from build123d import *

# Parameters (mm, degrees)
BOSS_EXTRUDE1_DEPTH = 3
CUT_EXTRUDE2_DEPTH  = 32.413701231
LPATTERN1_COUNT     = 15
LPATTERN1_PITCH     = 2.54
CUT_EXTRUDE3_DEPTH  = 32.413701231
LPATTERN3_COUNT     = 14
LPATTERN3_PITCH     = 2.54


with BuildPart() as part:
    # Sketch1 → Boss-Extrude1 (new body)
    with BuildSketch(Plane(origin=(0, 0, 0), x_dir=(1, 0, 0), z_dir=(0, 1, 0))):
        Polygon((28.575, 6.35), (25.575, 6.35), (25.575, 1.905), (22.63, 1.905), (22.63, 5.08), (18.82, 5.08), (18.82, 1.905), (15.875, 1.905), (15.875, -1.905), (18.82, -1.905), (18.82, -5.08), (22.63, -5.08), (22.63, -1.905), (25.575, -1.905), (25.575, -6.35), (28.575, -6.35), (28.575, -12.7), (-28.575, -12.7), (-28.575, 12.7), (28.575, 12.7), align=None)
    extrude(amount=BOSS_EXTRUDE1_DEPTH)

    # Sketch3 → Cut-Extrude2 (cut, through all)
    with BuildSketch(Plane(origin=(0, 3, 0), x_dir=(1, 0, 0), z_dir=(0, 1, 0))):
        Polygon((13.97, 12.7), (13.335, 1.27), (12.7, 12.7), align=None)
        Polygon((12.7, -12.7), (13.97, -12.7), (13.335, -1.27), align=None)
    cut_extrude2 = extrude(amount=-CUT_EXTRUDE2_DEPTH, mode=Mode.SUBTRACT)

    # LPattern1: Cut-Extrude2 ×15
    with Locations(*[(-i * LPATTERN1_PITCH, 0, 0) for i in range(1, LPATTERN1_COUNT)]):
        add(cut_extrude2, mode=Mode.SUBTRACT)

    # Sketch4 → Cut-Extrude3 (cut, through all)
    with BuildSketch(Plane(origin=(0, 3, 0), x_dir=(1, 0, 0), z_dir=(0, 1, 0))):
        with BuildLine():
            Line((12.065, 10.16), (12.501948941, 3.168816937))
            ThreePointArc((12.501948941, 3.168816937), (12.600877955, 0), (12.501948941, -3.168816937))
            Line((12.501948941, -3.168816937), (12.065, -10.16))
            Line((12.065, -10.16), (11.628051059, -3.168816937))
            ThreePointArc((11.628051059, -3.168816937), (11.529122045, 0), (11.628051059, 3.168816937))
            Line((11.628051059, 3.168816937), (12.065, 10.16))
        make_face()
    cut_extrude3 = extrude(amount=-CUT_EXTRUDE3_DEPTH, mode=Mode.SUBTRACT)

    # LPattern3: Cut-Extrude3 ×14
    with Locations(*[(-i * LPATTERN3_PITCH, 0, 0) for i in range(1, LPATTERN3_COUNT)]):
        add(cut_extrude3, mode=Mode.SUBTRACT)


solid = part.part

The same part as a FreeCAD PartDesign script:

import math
import FreeCAD as App
import Part
import Sketcher

V = App.Vector
Q = App.Units.Quantity


def add_polygon(sketch, points):
    """Adds a closed chain of lines whose ends are joined by coincident constraints."""
    first, n = sketch.GeometryCount, len(points)
    for a, b in zip(points, points[1:] + points[:1]):
        sketch.addGeometry(Part.LineSegment(App.Vector(*a, 0), App.Vector(*b, 0)), False)
    for i in range(n):
        sketch.addConstraint(Sketcher.Constraint("Coincident", first + i, 2, first + (i + 1) % n, 1))

doc = App.newDocument("Part")
body = doc.addObject("PartDesign::Body", "Body")

sketch1 = doc.addObject("Sketcher::SketchObject", "Sketch")
body.addObject(sketch1)
sketch1.AttachmentSupport = (doc.XZ_Plane, [""])
sketch1.MapMode = "FlatFace"
add_polygon(sketch1, [(25.6, -6.3), (28.6, -6.3), (28.6, -12.7), (-28.6, -12.7), (-28.6, 12.7), (28.6, 12.7), (28.6, 6.3), (25.6, 6.3), (25.6, 1.9), (22.6, 1.9), (22.6, 5.1), (18.8, 5.1), (18.8, 1.9), (15.9, 1.9), (15.9, -1.9), (18.8, -1.9), (18.8, -5.1), (22.6, -5.1), (22.6, -1.9), (25.6, -1.9)])
sketch1.addConstraint(Sketcher.Constraint("Horizontal", 0))
sketch1.addConstraint(Sketcher.Constraint("Vertical", 1))
sketch1.addConstraint(Sketcher.Constraint("Horizontal", 2))
sketch1.addConstraint(Sketcher.Constraint("Vertical", 3))
sketch1.addConstraint(Sketcher.Constraint("Horizontal", 4))
sketch1.addConstraint(Sketcher.Constraint("Vertical", 5))
sketch1.addConstraint(Sketcher.Constraint("Horizontal", 6))
sketch1.addConstraint(Sketcher.Constraint("Vertical", 7))
sketch1.addConstraint(Sketcher.Constraint("Horizontal", 8))
sketch1.addConstraint(Sketcher.Constraint("Vertical", 9))
sketch1.addConstraint(Sketcher.Constraint("Horizontal", 10))
sketch1.addConstraint(Sketcher.Constraint("Vertical", 11))
sketch1.addConstraint(Sketcher.Constraint("Horizontal", 12))
sketch1.addConstraint(Sketcher.Constraint("Vertical", 13))
sketch1.addConstraint(Sketcher.Constraint("Horizontal", 14))
sketch1.addConstraint(Sketcher.Constraint("Vertical", 15))
sketch1.addConstraint(Sketcher.Constraint("Horizontal", 16))
sketch1.addConstraint(Sketcher.Constraint("Vertical", 17))
sketch1.addConstraint(Sketcher.Constraint("Horizontal", 18))
sketch1.addConstraint(Sketcher.Constraint("Vertical", 19))
sketch1.addConstraint(Sketcher.Constraint("Symmetric", 1, 2, 3, 2, -1, 1))
sketch1.addConstraint(Sketcher.Constraint("Symmetric", 0, 2, 5, 2, -1))
sketch1.addConstraint(Sketcher.Constraint("Symmetric", 11, 2, 14, 2, -1))
sketch1.addConstraint(Sketcher.Constraint("Symmetric", 9, 2, 16, 2, -1))
sketch1.addConstraint(Sketcher.Constraint("Symmetric", 7, 2, 18, 2, -1))
sketch1.addConstraint(Sketcher.Constraint("Horizontal", 8, 2, 11, 2))
sketch1.addConstraint(Sketcher.Constraint("Equal", 8, 12))
sketch1.addConstraint(Sketcher.Constraint("Equal", 16, 13))
sketch1.addConstraint(Sketcher.Constraint("DistanceY", 3, 1, 3, 2, Q("1 in")))
sketch1.addConstraint(Sketcher.Constraint("DistanceX", 2, 2, 2, 1, Q("2.25 in")))
sketch1.addConstraint(Sketcher.Constraint("DistanceX", 10, 2, 10, 1, Q("0.15 in")))
sketch1.addConstraint(Sketcher.Constraint("DistanceY", 1, 2, 1, 1, Q("0.25 in")))
sketch1.addConstraint(Sketcher.Constraint("DistanceY", -1, 1, 9, 2, Q("0.2 in")))
sketch1.addConstraint(Sketcher.Constraint("DistanceX", -1, 1, 12, 2, Q("0.625 in")))
sketch1.addConstraint(Sketcher.Constraint("DistanceX", 0, 1, 0, 2, Q("3 mm")))
pad1 = doc.addObject("PartDesign::Pad", "Pad")
body.addObject(pad1)
pad1.Profile = sketch1
pad1.Length = 3
pad1.Reversed = True

sketch2 = doc.addObject("Sketcher::SketchObject", "Sketch001")
body.addObject(sketch2)
sketch2.AttachmentSupport = (doc.XZ_Plane, [""])
sketch2.MapMode = "FlatFace"
sketch2.AttachmentOffset = App.Placement(V(0, 0, -3), App.Rotation())
add_polygon(sketch2, [(13.3, -1.3), (14, -12.7), (12.7, -12.7)])
add_polygon(sketch2, [(12.7, 12.7), (14, 12.7), (13.3, 1.3)])
sketch2.addConstraint(Sketcher.Constraint("Horizontal", 1))
sketch2.addConstraint(Sketcher.Constraint("Horizontal", 3))
sketch2.addConstraint(Sketcher.Constraint("Symmetric", 0, 2, 3, 2, -1))
sketch2.addConstraint(Sketcher.Constraint("Symmetric", 2, 2, 4, 2, -1))
sketch2.addConstraint(Sketcher.Constraint("Parallel", 2, 4))
sketch2.addConstraint(Sketcher.Constraint("Parallel", 0, 5))
sketch2.addConstraint(Sketcher.Constraint("DistanceY", 0, 2, 3, 2, Q("1 in")))
sketch2.addConstraint(Sketcher.Constraint("DistanceX", 1, 2, 1, 1, Q("0.05 in")))
sketch2.addConstraint(Sketcher.Constraint("DistanceX", -1, 1, 1, 2, Q("0.5 in")))
sketch2.addConstraint(Sketcher.Constraint("DistanceY", 2, 2, 4, 2, Q("0.1 in")))
pocket1 = doc.addObject("PartDesign::Pocket", "Pocket")
body.addObject(pocket1)
pocket1.Profile = sketch2
pocket1.Type = "ThroughAll"
pocket1.Reversed = True
doc.recompute()

linearpattern = doc.addObject("PartDesign::LinearPattern", "LinearPattern")
body.addObject(linearpattern)
linearpattern.Originals = [pocket1]
linearpattern.Direction = (doc.X_Axis, [""])
linearpattern.Mode = "offset"
linearpattern.Offset = Q("0.1 in")
linearpattern.Occurrences = 15
linearpattern.Reversed = True
body.Tip = linearpattern

sketch3 = doc.addObject("Sketcher::SketchObject", "Sketch002")
body.addObject(sketch3)
sketch3.AttachmentSupport = (doc.XZ_Plane, [""])
sketch3.MapMode = "FlatFace"
sketch3.AttachmentOffset = App.Placement(V(0, 0, -3), App.Rotation())
sketch3.addGeometry(Part.LineSegment(V(13, -3, 0), V(12, -10, 0)), False)
sketch3.addGeometry(Part.LineSegment(V(12, -10, 0), V(12, -3, 0)), False)
sketch3.addGeometry(Part.ArcOfCircle(Part.Circle(V(62, 0, 0), V(0, 0, 1), 51), math.radians(176.42), math.radians(183.58)), False)
sketch3.addGeometry(Part.LineSegment(V(12, 3, 0), V(12, 10, 0)), False)
sketch3.addGeometry(Part.LineSegment(V(12, 10, 0), V(13, 3, 0)), False)
sketch3.addGeometry(Part.ArcOfCircle(Part.Circle(V(-38, 0, 0), V(0, 0, 1), 51), math.radians(-3.58), math.radians(3.58)), False)
sketch3.addConstraint(Sketcher.Constraint("Coincident", 0, 2, 1, 1))
sketch3.addConstraint(Sketcher.Constraint("Tangent", 1, 2, 2, 2))
sketch3.addConstraint(Sketcher.Constraint("Tangent", 2, 1, 3, 1))
sketch3.addConstraint(Sketcher.Constraint("Coincident", 3, 2, 4, 1))
sketch3.addConstraint(Sketcher.Constraint("Tangent", 4, 2, 5, 2))
sketch3.addConstraint(Sketcher.Constraint("Tangent", 5, 1, 0, 1))
sketch3.addConstraint(Sketcher.Constraint("Equal", 2, 5))
sketch3.addConstraint(Sketcher.Constraint("Symmetric", 1, 2, 2, 1, -1))
sketch3.addConstraint(Sketcher.Constraint("Symmetric", 4, 2, 5, 1, -1))
sketch3.addConstraint(Sketcher.Constraint("Parallel", 0, 3))
sketch3.addConstraint(Sketcher.Constraint("Radius", 2, Q("2 in")))
sketch3.addConstraint(Sketcher.Constraint("DistanceY", 0, 2, -1, 1, Q("0.4 in")))
sketch3.addConstraint(Sketcher.Constraint("DistanceX", -1, 1, 0, 2, Q("0.475 in")))
sketch3.addConstraint(Sketcher.Constraint("DistanceX", -1, 1, 2, 3, Q("62.329122 mm")))
pocket2 = doc.addObject("PartDesign::Pocket", "Pocket001")
body.addObject(pocket2)
pocket2.Profile = sketch3
pocket2.Type = "ThroughAll"
pocket2.Reversed = True
doc.recompute()

linearpattern2 = doc.addObject("PartDesign::LinearPattern", "LinearPattern001")
body.addObject(linearpattern2)
linearpattern2.Originals = [pocket2]
linearpattern2.Direction = (doc.X_Axis, [""])
linearpattern2.Mode = "offset"
linearpattern2.Offset = Q("0.1 in")
linearpattern2.Occurrences = 14
linearpattern2.Reversed = True
body.Tip = linearpattern2

doc.recompute()
